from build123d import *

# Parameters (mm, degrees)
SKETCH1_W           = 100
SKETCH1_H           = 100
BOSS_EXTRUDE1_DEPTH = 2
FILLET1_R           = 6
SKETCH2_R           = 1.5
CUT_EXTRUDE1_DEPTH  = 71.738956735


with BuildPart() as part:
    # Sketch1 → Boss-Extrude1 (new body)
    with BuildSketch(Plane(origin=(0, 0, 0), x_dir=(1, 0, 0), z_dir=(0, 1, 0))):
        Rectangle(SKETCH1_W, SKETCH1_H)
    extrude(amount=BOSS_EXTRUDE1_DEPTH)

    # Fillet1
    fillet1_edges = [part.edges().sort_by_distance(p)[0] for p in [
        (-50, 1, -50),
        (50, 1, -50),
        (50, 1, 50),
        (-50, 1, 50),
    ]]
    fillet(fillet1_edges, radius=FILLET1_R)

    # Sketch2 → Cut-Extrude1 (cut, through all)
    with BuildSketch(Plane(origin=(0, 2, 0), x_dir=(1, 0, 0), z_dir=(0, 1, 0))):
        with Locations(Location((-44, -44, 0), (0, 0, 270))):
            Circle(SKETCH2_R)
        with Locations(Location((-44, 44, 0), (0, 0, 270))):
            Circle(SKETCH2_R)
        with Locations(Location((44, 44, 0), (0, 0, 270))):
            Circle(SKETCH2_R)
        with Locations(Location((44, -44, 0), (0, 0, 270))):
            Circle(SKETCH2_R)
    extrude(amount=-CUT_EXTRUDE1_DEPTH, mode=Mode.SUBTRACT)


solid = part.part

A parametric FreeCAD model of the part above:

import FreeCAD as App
import Part
import Sketcher


def edges_at(feature, points):
    """Names of the edges that pass closest to the given points."""
    edges = feature.Shape.Edges
    near = lambda p: min(range(len(edges)), key=lambda i: edges[i].distToShape(Part.Vertex(*p))[0])
    return sorted({f"Edge{near(p) + 1}" for p in points})


def add_polygon(sketch, points):
    """Adds a closed chain of lines whose ends are joined by coincident constraints."""
    first, n = sketch.GeometryCount, len(points)
    for a, b in zip(points, points[1:] + points[:1]):
        sketch.addGeometry(Part.LineSegment(App.Vector(*a, 0), App.Vector(*b, 0)), False)
    for i in range(n):
        sketch.addConstraint(Sketcher.Constraint("Coincident", first + i, 2, first + (i + 1) % n, 1))

doc = App.newDocument("Part")
body = doc.addObject("PartDesign::Body", "Body")

sketch1 = doc.addObject("Sketcher::SketchObject", "Sketch")
body.addObject(sketch1)
sketch1.AttachmentSupport = (doc.XZ_Plane, [""])
sketch1.MapMode = "FlatFace"
add_polygon(sketch1, [(-50, -50), (-50, 50), (50, 50), (50, -50)])
sketch1.addConstraint(Sketcher.Constraint("Vertical", 0))
sketch1.addConstraint(Sketcher.Constraint("Horizontal", 1))
sketch1.addConstraint(Sketcher.Constraint("Vertical", 2))
sketch1.addConstraint(Sketcher.Constraint("Horizontal", 3))
sketch1.addConstraint(Sketcher.Constraint("Symmetric", 0, 2, 2, 2, -1, 1))
sketch1.addConstraint(Sketcher.Constraint("Equal", 3, 0))
sketch1.addConstraint(Sketcher.Constraint("DistanceX", 1, 1, 1, 2, 100.0))
pad1 = doc.addObject("PartDesign::Pad", "Pad")
body.addObject(pad1)
pad1.Profile = sketch1
pad1.Length = 2
pad1.Reversed = True
doc.recompute()

fillet = doc.addObject("PartDesign::Fillet", "Fillet")
body.addObject(fillet)
fillet.Base = (pad1, edges_at(pad1, [
    (-50, 1, -50),
    (50, 1, -50),
    (50, 1, 50),
    (-50, 1, 50),
]))
fillet.Radius = 6

sketch2 = doc.addObject("Sketcher::SketchObject", "Sketch001")
body.addObject(sketch2)
sketch2.AttachmentSupport = (doc.XZ_Plane, [""])
sketch2.MapMode = "FlatFace"
sketch2.AttachmentOffset = App.Placement(App.Vector(0, 0, -2), App.Rotation())
sketch2.addGeometry(Part.Circle(App.Vector(-44, 44, 0), App.Vector(0, 0, 1), 1.5), False)
sketch2.addGeometry(Part.Circle(App.Vector(-44, -44, 0), App.Vector(0, 0, 1), 1.5), False)
sketch2.addGeometry(Part.Circle(App.Vector(44, -44, 0), App.Vector(0, 0, 1), 1.5), False)
sketch2.addGeometry(Part.Circle(App.Vector(44, 44, 0), App.Vector(0, 0, 1), 1.5), False)
sketch2.addConstraint(Sketcher.Constraint("Equal", 0, 1))
sketch2.addConstraint(Sketcher.Constraint("Equal", 1, 2))
sketch2.addConstraint(Sketcher.Constraint("Equal", 2, 3))
sketch2.addConstraint(Sketcher.Constraint("Symmetric", 0, 3, 2, 3, -1, 1))
sketch2.addConstraint(Sketcher.Constraint("Symmetric", 1, 3, 3, 3, -1, 1))
sketch2.addConstraint(Sketcher.Constraint("Symmetric", 1, 3, 2, 3, -2))
sketch2.addConstraint(Sketcher.Constraint("Diameter", 0, 3.0))
sketch2.addConstraint(Sketcher.Constraint("DistanceX", 0, 3, -1, 1, 44.0))
sketch2.addConstraint(Sketcher.Constraint("DistanceY", -1, 1, 0, 3, 44.0))
pocket1 = doc.addObject("PartDesign::Pocket", "Pocket")
body.addObject(pocket1)
pocket1.Profile = sketch2
pocket1.Type = "ThroughAll"
pocket1.Reversed = True

doc.recompute()
